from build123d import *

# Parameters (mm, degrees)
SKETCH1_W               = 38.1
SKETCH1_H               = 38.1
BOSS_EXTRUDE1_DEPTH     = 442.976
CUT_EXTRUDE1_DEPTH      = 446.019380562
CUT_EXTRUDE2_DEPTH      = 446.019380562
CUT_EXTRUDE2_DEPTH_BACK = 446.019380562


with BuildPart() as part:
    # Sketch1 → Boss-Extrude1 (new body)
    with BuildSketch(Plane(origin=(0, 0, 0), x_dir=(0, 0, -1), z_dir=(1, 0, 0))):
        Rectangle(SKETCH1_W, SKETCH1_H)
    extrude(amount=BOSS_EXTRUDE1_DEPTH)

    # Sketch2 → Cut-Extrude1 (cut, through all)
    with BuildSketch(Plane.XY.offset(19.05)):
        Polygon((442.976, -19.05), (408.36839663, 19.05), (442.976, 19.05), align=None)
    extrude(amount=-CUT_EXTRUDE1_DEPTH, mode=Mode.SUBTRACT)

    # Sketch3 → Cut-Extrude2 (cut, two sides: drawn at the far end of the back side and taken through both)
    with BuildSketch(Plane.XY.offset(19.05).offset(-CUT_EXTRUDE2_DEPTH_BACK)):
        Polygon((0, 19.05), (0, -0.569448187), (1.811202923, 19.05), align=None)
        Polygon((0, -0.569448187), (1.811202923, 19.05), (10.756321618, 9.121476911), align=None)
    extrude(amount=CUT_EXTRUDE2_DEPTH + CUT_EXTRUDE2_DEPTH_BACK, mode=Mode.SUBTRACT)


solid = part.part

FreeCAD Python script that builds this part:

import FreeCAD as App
import Part
import Sketcher
Q = App.Units.Quantity

doc = App.newDocument("Part")
params = doc.addObject("Spreadsheet::Sheet", "Params")
for row, (alias, value) in enumerate([
    ("sketch1_width", "1.5 in"),
    ("pad1_length", "17.44 in"),
    ("sketch2_height", "1.5 in"),
    ("sketch3_length", "0.57 in"),
], start=1):
    params.set(f"A{row}", alias)
    params.set(f"B{row}", "=" + value)
    params.setAlias(f"B{row}", alias)

body = doc.addObject("PartDesign::Body", "Body")

sketch1 = doc.addObject("Sketcher::SketchObject", "Sketch")
body.addObject(sketch1)
sketch1.AttachmentSupport = (doc.YZ_Plane, [""])
sketch1.MapMode = "FlatFace"
sketch1.addGeometry([
    Part.LineSegment(App.Vector(19, 19, 0), App.Vector(-19, 19, 0)),
    Part.LineSegment(App.Vector(-19, 19, 0), App.Vector(-19, -19, 0)),
    Part.LineSegment(App.Vector(-19, -19, 0), App.Vector(19, -19, 0)),
    Part.LineSegment(App.Vector(19, -19, 0), App.Vector(19, 19, 0)),
], False)
sketch1.addConstraint([
    Sketcher.Constraint("Coincident", 0, 2, 1, 1),
    Sketcher.Constraint("Coincident", 1, 2, 2, 1),
    Sketcher.Constraint("Coincident", 2, 2, 3, 1),
    Sketcher.Constraint("Coincident", 3, 2, 0, 1),
    Sketcher.Constraint("Horizontal", 0),
    Sketcher.Constraint("Vertical", 1),
    Sketcher.Constraint("Horizontal", 2),
    Sketcher.Constraint("Vertical", 3),
    Sketcher.Constraint("Symmetric", 0, 2, 2, 2, -1, 1),
    Sketcher.Constraint("Equal", 2, 1),
    Sketcher.Constraint("DistanceX", 0, 2, 0, 1, Q("1.5 in")),
])
sketch1.setExpression("Constraints[10]", "Params.sketch1_width")
pad1 = doc.addObject("PartDesign::Pad", "Pad")
body.addObject(pad1)
pad1.Profile = sketch1
pad1.setExpression("Length", "Params.pad1_length")

sketch2 = doc.addObject("Sketcher::SketchObject", "Sketch001")
body.addObject(sketch2)
sketch2.AttachmentSupport = (doc.XY_Plane, [""])
sketch2.MapMode = "FlatFace"
sketch2.AttachmentOffset = App.Placement(App.Vector(0, 0, 0.75 * 25.4), App.Rotation())
sketch2.addGeometry([
    Part.LineSegment(App.Vector(408, 19, 0), App.Vector(443, -19, 0)),
    Part.LineSegment(App.Vector(443, -19, 0), App.Vector(443, 19, 0)),
    Part.LineSegment(App.Vector(443, 19, 0), App.Vector(408, 19, 0)),
], False)
sketch2.addConstraint([
    Sketcher.Constraint("Coincident", 0, 2, 1, 1),
    Sketcher.Constraint("Coincident", 1, 2, 2, 1),
    Sketcher.Constraint("Coincident", 2, 2, 0, 1),
    Sketcher.Constraint("Vertical", 1),
    Sketcher.Constraint("Horizontal", 2),
    Sketcher.Constraint("DistanceY", 1, 1, 1, 2, Q("1.5 in")),
    Sketcher.Constraint("DistanceX", -1, 1, 0, 2, Q("17.44 in")),
    Sketcher.Constraint("DistanceY", 0, 2, -1, 1, Q("0.75 in")),
    Sketcher.Constraint("Angle", 0, Q("-47.75 deg")),
])
sketch2.setExpression("Constraints[5]", "Params.sketch2_height")
pocket1 = doc.addObject("PartDesign::Pocket", "Pocket")
body.addObject(pocket1)
pocket1.Profile = sketch2
pocket1.Type = "ThroughAll"

sketch3 = doc.addObject("Sketcher::SketchObject", "Sketch002")
body.addObject(sketch3)
sketch3.AttachmentSupport = (doc.XY_Plane, [""])
sketch3.MapMode = "FlatFace"
sketch3.AttachmentOffset = App.Placement(App.Vector(0, 0, 0.75 * 25.4), App.Rotation())
sketch3.addGeometry([
    Part.LineSegment(App.Vector(0, 19.1, 0), App.Vector(0, -0.6, 0)),
    Part.LineSegment(App.Vector(0, -0.6, 0), App.Vector(10.8, 9.1, 0)),
    Part.LineSegment(App.Vector(10.8, 9.1, 0), App.Vector(1.8, 19.1, 0)),
    Part.LineSegment(App.Vector(1.8, 19.1, 0), App.Vector(0, 19.1, 0)),
], False)
sketch3.addConstraint([
    Sketcher.Constraint("Coincident", 0, 2, 1, 1),
    Sketcher.Constraint("Coincident", 1, 2, 2, 1),
    Sketcher.Constraint("Coincident", 2, 2, 3, 1),
    Sketcher.Constraint("Coincident", 3, 2, 0, 1),
    Sketcher.Constraint("Vertical", 0),
    Sketcher.Constraint("Horizontal", 3),
    Sketcher.Constraint("PointOnObject", 0, 2, -2),
    Sketcher.Constraint("Perpendicular", 1, 2),
    Sketcher.Constraint("Distance", 1, Q("0.57 in")),
    Sketcher.Constraint("DistanceY", -1, 1, 2, 2, Q("0.75 in")),
    Sketcher.Constraint("DistanceY", 0, 2, 0, 1, Q("19.619448 mm")),
    Sketcher.Constraint("DistanceX", 3, 2, 3, 1, Q("1.811203 mm")),
])
sketch3.setExpression("Constraints[8]", "Params.sketch3_length")
pocket2 = doc.addObject("PartDesign::Pocket", "Pocket001")
body.addObject(pocket2)
pocket2.Profile = sketch3
pocket2.Type = "ThroughAll"
pocket2.Midplane = True

doc.recompute()
